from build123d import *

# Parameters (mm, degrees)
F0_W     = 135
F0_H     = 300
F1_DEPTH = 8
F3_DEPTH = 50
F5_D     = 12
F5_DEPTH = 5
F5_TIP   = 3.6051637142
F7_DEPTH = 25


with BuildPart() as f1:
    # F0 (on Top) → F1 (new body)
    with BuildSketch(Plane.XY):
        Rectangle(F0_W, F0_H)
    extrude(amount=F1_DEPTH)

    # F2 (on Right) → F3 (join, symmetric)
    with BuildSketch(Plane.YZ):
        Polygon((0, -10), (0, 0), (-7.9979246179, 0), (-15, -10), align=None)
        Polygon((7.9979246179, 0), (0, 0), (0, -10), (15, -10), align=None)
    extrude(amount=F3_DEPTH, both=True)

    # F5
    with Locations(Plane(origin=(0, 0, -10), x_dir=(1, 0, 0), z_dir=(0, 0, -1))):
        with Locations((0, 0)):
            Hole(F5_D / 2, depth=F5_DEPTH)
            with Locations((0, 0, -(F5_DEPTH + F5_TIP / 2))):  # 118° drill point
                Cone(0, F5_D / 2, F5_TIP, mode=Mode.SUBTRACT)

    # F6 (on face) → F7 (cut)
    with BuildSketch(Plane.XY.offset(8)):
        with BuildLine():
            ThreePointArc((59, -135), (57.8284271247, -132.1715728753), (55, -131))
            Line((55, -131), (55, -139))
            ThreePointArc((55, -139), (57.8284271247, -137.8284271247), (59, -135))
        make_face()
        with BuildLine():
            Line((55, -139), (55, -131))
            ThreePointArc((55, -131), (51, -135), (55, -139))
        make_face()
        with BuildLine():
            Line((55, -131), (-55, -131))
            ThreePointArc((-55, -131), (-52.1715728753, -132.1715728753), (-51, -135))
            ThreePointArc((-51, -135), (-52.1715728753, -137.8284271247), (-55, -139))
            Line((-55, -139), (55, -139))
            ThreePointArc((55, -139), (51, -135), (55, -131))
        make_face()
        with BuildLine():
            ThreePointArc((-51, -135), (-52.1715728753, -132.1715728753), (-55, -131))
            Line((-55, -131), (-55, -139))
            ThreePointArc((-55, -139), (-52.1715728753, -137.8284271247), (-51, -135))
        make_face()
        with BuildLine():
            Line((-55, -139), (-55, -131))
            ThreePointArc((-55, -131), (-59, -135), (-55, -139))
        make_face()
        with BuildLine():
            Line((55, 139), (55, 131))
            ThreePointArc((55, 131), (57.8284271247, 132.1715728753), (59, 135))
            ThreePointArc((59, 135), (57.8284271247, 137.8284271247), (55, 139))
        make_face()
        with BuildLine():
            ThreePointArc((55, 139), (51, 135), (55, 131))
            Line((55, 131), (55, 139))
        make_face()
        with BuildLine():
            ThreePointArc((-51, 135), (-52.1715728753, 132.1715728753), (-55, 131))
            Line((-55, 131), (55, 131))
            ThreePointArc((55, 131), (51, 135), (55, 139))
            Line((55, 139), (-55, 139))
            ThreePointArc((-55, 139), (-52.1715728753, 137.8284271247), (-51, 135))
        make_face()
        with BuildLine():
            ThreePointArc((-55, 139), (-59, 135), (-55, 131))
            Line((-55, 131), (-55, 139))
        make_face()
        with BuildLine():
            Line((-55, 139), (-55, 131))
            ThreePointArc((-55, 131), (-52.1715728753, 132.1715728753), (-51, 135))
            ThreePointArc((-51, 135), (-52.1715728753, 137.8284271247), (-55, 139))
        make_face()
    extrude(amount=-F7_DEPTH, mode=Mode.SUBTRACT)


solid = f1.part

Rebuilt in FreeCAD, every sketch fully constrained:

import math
import FreeCAD as App
import Part
import Sketcher
from FreeCAD import Vector
Q = App.Units.Quantity

doc = App.newDocument("Part")
body = doc.addObject("PartDesign::Body", "Body")

# Sketch on XY plane
sketch1 = body.newObject("Sketcher::SketchObject", "Sketch")
sketch1.AttachmentSupport = (doc.getObject("XY_Plane"), [""])
sketch1.MapMode = "FlatFace"
sketch1.addGeometry([
    Part.LineSegment(Vector(-68, 150, 0), Vector(-68, -150, 0)),
    Part.LineSegment(Vector(-68, -150, 0), Vector(68, -150, 0)),
    Part.LineSegment(Vector(68, -150, 0), Vector(68, 150, 0)),
    Part.LineSegment(Vector(68, 150, 0), Vector(-68, 150, 0)),
], False)
sketch1.addConstraint([
    Sketcher.Constraint("Coincident", 0, 2, 1, 1),
    Sketcher.Constraint("Coincident", 1, 2, 2, 1),
    Sketcher.Constraint("Coincident", 2, 2, 3, 1),
    Sketcher.Constraint("Coincident", 3, 2, 0, 1),
    Sketcher.Constraint("Vertical", 0),
    Sketcher.Constraint("Horizontal", 1),
    Sketcher.Constraint("Vertical", 2),
    Sketcher.Constraint("Horizontal", 3),
    Sketcher.Constraint("Symmetric", 0, 2, 2, 2, -1, 1),
    Sketcher.Constraint("DistanceX", 1, 1, 1, 2, Q("135 mm")),
    Sketcher.Constraint("DistanceY", 0, 2, 0, 1, Q("300 mm")),
])
pad1 = body.newObject("PartDesign::Pad", "Pad")
pad1.Profile = sketch1
pad1.Length = 8

# Sketch on YZ plane
sketch2 = body.newObject("Sketcher::SketchObject", "Sketch001")
sketch2.AttachmentSupport = (doc.getObject("YZ_Plane"), [""])
sketch2.MapMode = "FlatFace"
sketch2.addGeometry([
    Part.LineSegment(Vector(-8, 0, 0), Vector(-15, -10, 0)),
    Part.LineSegment(Vector(-15, -10, 0), Vector(15, -10, 0)),
    Part.LineSegment(Vector(15, -10, 0), Vector(8, 0, 0)),
    Part.LineSegment(Vector(8, 0, 0), Vector(-8, 0, 0)),
], False)
sketch2.addConstraint([
    Sketcher.Constraint("Coincident", 0, 2, 1, 1),
    Sketcher.Constraint("Coincident", 1, 2, 2, 1),
    Sketcher.Constraint("Coincident", 2, 2, 3, 1),
    Sketcher.Constraint("Coincident", 3, 2, 0, 1),
    Sketcher.Constraint("Horizontal", 1),
    Sketcher.Constraint("Horizontal", 3),
    Sketcher.Constraint("Symmetric", 2, 2, 3, 2, -1, 1),
    Sketcher.Constraint("Equal", 0, 2),
    Sketcher.Constraint("DistanceX", 1, 1, 1, 2, Q("30 mm")),
    Sketcher.Constraint("Angle", 0, Q("-125 deg")),
    Sketcher.Constraint("DistanceY", 0, 2, -1, 1, Q("10 mm")),
])
pad2 = body.newObject("PartDesign::Pad", "Pad001")
pad2.Profile = sketch2
pad2.Length = 100
pad2.Midplane = True

# Sketch on XY plane
sketch3 = body.newObject("Sketcher::SketchObject", "Sketch002")
sketch3.AttachmentSupport = (doc.getObject("XY_Plane"), [""])
sketch3.MapMode = "FlatFace"
sketch3.AttachmentOffset = App.Placement(Vector(0, 0, -10), App.Rotation())
sketch3.addGeometry(Part.Circle(Vector(0, 0, 0), Vector(0, 0, 1), 6), False)
sketch3.addConstraint([
    Sketcher.Constraint("Coincident", 0, 3, -1, 1),
    Sketcher.Constraint("Diameter", 0, Q("12 mm")),
])
doc.recompute()
hole = body.newObject("PartDesign::Hole", "Hole")
hole.Profile = sketch3
hole.ThreadType = "None"
hole.Diameter = 12
hole.DepthType = "Dimension"
hole.Depth = 5
hole.DrillPoint = "Angled"
hole.DrillPointAngle = 118
hole.Reversed = True

# Sketch on XY plane
sketch4 = body.newObject("Sketcher::SketchObject", "Sketch003")
sketch4.AttachmentSupport = (doc.getObject("XY_Plane"), [""])
sketch4.MapMode = "FlatFace"
sketch4.AttachmentOffset = App.Placement(Vector(0, 0, 8), App.Rotation())
sketch4.addGeometry([
    Part.ArcOfCircle(Part.Circle(Vector(55, -135, 0), Vector(0, 0, 1), 4), math.radians(0), math.radians(90)),  # 0
    Part.LineSegment(Vector(55, -131, 0), Vector(-55, -131, 0)),  # 1
    Part.ArcOfCircle(Part.Circle(Vector(-55, -135, 0), Vector(0, 0, 1), 4), math.radians(90), math.radians(270)),  # 2
    Part.LineSegment(Vector(-55, -139, 0), Vector(55, -139, 0)),  # 3
    Part.ArcOfCircle(Part.Circle(Vector(55, -135, 0), Vector(0, 0, 1), 4), math.radians(-90), math.radians(0)),  # 4
    Part.ArcOfCircle(Part.Circle(Vector(55, 135, 0), Vector(0, 0, 1), 4), math.radians(-90), math.radians(0)),  # 5
    Part.ArcOfCircle(Part.Circle(Vector(55, 135, 0), Vector(0, 0, 1), 4), math.radians(0), math.radians(90)),  # 6
    Part.LineSegment(Vector(55, 139, 0), Vector(-55, 139, 0)),  # 7
    Part.ArcOfCircle(Part.Circle(Vector(-55, 135, 0), Vector(0, 0, 1), 4), math.radians(90), math.radians(270)),  # 8
    Part.LineSegment(Vector(-55, 131, 0), Vector(55, 131, 0)),  # 9
], False)
sketch4.addConstraint([
    Sketcher.Constraint("Tangent", 0, 2, 1, 1),
    Sketcher.Constraint("Tangent", 1, 2, 2, 1),
    Sketcher.Constraint("Tangent", 2, 2, 3, 1),
    Sketcher.Constraint("Tangent", 3, 2, 4, 1),
    Sketcher.Constraint("Tangent", 4, 2, 0, 1),
    Sketcher.Constraint("Tangent", 5, 2, 6, 1),
    Sketcher.Constraint("Tangent", 6, 2, 7, 1),
    Sketcher.Constraint("Tangent", 7, 2, 8, 1),
    Sketcher.Constraint("Tangent", 8, 2, 9, 1),
    Sketcher.Constraint("Tangent", 9, 2, 5, 1),
    Sketcher.Constraint("Horizontal", 1),
    Sketcher.Constraint("Horizontal", 3),
    Sketcher.Constraint("Horizontal", 7),
    Sketcher.Constraint("Horizontal", 9),
    Sketcher.Constraint("Equal", 0, 2),
    Sketcher.Constraint("Equal", 4, 5),
    Sketcher.Constraint("Equal", 5, 6),
    Sketcher.Constraint("Symmetric", 2, 3, 5, 3, -1, 1),
    Sketcher.Constraint("Symmetric", 4, 2, 5, 2, -1),
    Sketcher.Constraint("Horizontal", 2, 3, 4, 2),
    Sketcher.Constraint("Vertical", 2, 3, 8, 3),
    Sketcher.Constraint("Radius", 0, Q("4 mm")),
    Sketcher.Constraint("DistanceX", 1, 2, 1, 1, Q("110 mm")),
    Sketcher.Constraint("DistanceY", 0, 3, -1, 1, Q("135 mm")),
])
pocket1 = body.newObject("PartDesign::Pocket", "Pocket")
pocket1.Profile = sketch4
pocket1.Length = 25

doc.recompute()
